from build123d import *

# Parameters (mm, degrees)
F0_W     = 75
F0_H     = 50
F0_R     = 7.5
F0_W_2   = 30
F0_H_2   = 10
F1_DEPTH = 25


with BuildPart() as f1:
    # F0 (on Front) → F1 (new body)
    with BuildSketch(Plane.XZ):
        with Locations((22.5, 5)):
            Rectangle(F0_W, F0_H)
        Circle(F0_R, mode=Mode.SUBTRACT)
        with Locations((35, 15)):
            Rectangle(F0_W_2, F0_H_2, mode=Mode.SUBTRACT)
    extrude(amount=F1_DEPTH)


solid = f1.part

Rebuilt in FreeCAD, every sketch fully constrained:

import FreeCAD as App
import Part
import Sketcher

V = App.Vector
Q = App.Units.Quantity


def add_polygon(sketch, points):
    """Adds a closed chain of lines whose ends are joined by coincident constraints."""
    first, n = sketch.GeometryCount, len(points)
    for a, b in zip(points, points[1:] + points[:1]):
        sketch.addGeometry(Part.LineSegment(App.Vector(*a, 0), App.Vector(*b, 0)), False)
    for i in range(n):
        sketch.addConstraint(Sketcher.Constraint("Coincident", first + i, 2, first + (i + 1) % n, 1))

doc = App.newDocument("Part")
body = doc.addObject("PartDesign::Body", "Body")

# Sketch on XZ plane
sketch1 = doc.addObject("Sketcher::SketchObject", "Sketch")
body.addObject(sketch1)
sketch1.AttachmentSupport = (doc.XZ_Plane, [""])
sketch1.MapMode = "FlatFace"
add_polygon(sketch1, [(-15, 30), (-15, -20), (60, -20), (60, 30)])  # lines 0-3
sketch1.addGeometry(Part.Circle(V(0, 0, 0), V(0, 0, 1), 7.5), False)  # 4
add_polygon(sketch1, [(50, 10), (20, 10), (20, 20), (50, 20)])  # lines 5-8
sketch1.addConstraint(Sketcher.Constraint("Vertical", 0))
sketch1.addConstraint(Sketcher.Constraint("Horizontal", 1))
sketch1.addConstraint(Sketcher.Constraint("Vertical", 2))
sketch1.addConstraint(Sketcher.Constraint("Horizontal", 3))
sketch1.addConstraint(Sketcher.Constraint("Horizontal", 5))
sketch1.addConstraint(Sketcher.Constraint("Vertical", 6))
sketch1.addConstraint(Sketcher.Constraint("Horizontal", 7))
sketch1.addConstraint(Sketcher.Constraint("Vertical", 8))
sketch1.addConstraint(Sketcher.Constraint("Coincident", 4, 3, -1, 1))
sketch1.addConstraint(Sketcher.Constraint("Diameter", 4, Q("15 mm")))
sketch1.addConstraint(Sketcher.Constraint("DistanceX", 1, 1, 1, 2, Q("75 mm")))
sketch1.addConstraint(Sketcher.Constraint("DistanceX", 5, 2, 5, 1, Q("30 mm")))
sketch1.addConstraint(Sketcher.Constraint("DistanceY", 0, 2, 0, 1, Q("50 mm")))
sketch1.addConstraint(Sketcher.Constraint("DistanceY", 6, 1, 6, 2, Q("10 mm")))
sketch1.addConstraint(Sketcher.Constraint("DistanceX", 0, 2, -1, 1, Q("15 mm")))
sketch1.addConstraint(Sketcher.Constraint("DistanceY", 0, 2, -1, 1, Q("20 mm")))
sketch1.addConstraint(Sketcher.Constraint("DistanceX", -1, 1, 5, 2, Q("20 mm")))
sketch1.addConstraint(Sketcher.Constraint("DistanceY", -1, 1, 5, 2, Q("10 mm")))
pad1 = doc.addObject("PartDesign::Pad", "Pad")
body.addObject(pad1)
pad1.Profile = sketch1
pad1.Length = 25

doc.recompute()
